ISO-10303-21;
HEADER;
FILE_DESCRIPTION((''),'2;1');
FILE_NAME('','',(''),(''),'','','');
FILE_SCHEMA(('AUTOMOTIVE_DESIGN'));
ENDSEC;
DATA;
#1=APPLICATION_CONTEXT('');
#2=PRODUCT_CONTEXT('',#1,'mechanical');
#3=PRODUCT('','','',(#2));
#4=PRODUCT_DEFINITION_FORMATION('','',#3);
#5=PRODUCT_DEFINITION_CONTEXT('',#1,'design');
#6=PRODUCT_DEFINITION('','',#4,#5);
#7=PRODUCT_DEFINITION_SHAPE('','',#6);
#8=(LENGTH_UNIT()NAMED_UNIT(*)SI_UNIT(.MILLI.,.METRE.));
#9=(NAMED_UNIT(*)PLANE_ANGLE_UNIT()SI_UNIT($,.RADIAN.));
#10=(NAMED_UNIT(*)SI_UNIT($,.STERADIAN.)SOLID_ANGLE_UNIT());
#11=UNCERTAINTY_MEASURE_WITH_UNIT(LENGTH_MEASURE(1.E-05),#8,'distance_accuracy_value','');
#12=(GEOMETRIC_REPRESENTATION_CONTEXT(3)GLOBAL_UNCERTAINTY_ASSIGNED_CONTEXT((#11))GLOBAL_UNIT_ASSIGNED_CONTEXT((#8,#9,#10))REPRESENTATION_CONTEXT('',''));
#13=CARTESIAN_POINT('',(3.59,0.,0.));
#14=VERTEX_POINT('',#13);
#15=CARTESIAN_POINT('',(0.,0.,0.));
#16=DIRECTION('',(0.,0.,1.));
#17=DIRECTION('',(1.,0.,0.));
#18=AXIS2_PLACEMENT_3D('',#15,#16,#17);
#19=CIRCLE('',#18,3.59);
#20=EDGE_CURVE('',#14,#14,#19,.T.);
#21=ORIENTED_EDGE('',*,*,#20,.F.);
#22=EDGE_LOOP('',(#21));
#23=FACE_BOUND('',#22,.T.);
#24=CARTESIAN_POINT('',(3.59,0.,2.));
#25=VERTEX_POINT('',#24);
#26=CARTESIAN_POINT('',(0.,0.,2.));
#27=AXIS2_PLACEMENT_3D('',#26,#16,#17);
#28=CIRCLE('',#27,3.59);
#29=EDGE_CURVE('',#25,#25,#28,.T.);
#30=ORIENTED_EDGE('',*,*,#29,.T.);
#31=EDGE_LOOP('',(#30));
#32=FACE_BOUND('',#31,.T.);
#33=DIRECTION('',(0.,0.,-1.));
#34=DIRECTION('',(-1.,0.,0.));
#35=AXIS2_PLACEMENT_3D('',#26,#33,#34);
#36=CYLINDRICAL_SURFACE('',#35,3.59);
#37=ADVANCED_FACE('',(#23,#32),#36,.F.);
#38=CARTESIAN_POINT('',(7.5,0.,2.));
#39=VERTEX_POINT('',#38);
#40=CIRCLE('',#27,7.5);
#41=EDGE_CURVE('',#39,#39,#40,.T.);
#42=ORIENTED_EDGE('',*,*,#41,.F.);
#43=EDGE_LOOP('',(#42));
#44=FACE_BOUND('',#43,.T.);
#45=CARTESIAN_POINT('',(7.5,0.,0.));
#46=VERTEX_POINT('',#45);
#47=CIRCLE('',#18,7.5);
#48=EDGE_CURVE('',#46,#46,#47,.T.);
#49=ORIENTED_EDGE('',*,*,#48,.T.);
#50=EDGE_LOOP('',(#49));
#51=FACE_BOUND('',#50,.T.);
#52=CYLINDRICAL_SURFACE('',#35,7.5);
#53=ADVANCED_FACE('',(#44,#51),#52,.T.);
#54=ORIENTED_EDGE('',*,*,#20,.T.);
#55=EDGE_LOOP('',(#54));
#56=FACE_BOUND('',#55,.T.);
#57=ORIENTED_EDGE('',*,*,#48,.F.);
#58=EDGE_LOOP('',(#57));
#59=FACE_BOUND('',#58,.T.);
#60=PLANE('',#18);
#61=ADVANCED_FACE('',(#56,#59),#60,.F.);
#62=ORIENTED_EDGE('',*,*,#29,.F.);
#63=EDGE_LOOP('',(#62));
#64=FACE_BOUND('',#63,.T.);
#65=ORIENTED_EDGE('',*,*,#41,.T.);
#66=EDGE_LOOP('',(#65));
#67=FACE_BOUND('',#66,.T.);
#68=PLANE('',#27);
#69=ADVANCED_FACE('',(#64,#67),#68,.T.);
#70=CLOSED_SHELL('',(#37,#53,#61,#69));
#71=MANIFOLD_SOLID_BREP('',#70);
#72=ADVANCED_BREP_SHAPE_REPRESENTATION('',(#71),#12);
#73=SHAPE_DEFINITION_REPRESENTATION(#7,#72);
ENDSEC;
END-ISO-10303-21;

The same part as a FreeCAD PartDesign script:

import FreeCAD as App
import Part
import Sketcher
Q = App.Units.Quantity

doc = App.newDocument("Part")
body = doc.addObject("PartDesign::Body", "Body")

sketch1 = body.newObject("Sketcher::SketchObject", "Sketch")
sketch1.AttachmentSupport = (doc.getObject("XY_Plane"), [""])
sketch1.MapMode = "FlatFace"
sketch1.addGeometry([
    Part.Circle(App.Vector(0, 0, 0), App.Vector(0, 0, 1), 7.5),
    Part.Circle(App.Vector(0, 0, 0), App.Vector(0, 0, 1), 3.6),
], False)
sketch1.addConstraint([
    Sketcher.Constraint("Coincident", 0, 3, -1, 1),
    Sketcher.Constraint("Coincident", 1, 3, -1, 1),
    Sketcher.Constraint("Diameter", 0, Q("15 mm")),
    Sketcher.Constraint("Diameter", 1, Q("7.18 mm")),
])
pad1 = body.newObject("PartDesign::Pad", "Pad")
pad1.Profile = sketch1
pad1.Length = 2

doc.recompute()
